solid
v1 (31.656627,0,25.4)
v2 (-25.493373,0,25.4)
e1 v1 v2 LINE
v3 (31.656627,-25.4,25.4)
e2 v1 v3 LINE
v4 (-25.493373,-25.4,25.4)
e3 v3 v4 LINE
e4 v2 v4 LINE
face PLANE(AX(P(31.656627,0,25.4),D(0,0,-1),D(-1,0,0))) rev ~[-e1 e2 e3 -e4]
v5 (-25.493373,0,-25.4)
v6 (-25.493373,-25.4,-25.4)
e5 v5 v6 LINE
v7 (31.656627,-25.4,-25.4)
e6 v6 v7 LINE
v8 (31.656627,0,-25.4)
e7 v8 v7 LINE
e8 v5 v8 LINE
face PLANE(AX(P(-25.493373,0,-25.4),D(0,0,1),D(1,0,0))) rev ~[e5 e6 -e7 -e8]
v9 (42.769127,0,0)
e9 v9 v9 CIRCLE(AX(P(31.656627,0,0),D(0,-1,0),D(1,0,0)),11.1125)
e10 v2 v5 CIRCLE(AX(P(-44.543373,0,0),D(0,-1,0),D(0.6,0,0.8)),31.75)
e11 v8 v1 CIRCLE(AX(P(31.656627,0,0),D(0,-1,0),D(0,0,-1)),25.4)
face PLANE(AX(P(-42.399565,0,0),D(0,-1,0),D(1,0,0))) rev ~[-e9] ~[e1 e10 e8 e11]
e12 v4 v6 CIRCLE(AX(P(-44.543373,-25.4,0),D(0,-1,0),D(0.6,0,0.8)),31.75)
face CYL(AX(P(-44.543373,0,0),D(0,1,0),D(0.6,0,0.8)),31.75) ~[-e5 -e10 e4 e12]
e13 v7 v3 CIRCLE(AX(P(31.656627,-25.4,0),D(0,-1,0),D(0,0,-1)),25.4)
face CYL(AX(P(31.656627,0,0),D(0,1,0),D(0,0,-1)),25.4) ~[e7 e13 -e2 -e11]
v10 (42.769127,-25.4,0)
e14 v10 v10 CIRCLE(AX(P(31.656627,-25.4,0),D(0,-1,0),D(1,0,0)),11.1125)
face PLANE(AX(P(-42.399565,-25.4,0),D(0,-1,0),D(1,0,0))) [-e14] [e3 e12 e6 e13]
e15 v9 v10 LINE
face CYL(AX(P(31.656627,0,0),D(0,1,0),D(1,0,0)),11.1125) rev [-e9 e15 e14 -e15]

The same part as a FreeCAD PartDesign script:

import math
import FreeCAD as App
import Part
import Sketcher
Q = App.Units.Quantity

doc = App.newDocument("Part")
params = doc.addObject("Spreadsheet::Sheet", "Params")
for row, (alias, value) in enumerate([
    ("sketch1_radius", "1 in"),
    ("sketch1_radius2", "1.25 in"),
    ("sketch1_diameter", "0.875 in"),
    ("pad1_length", "1 in"),
], start=1):
    params.set(f"A{row}", alias)
    params.set(f"B{row}", "=" + value)
    params.setAlias(f"B{row}", alias)

body = doc.addObject("PartDesign::Body", "Body")

# Sketch on XZ plane
sketch1 = doc.addObject("Sketcher::SketchObject", "Sketch")
body.addObject(sketch1)
sketch1.AttachmentSupport = (doc.XZ_Plane, [""])
sketch1.MapMode = "FlatFace"
sketch1.addGeometry([
    Part.ArcOfCircle(Part.Circle(App.Vector(-44.543373, 0, 0), App.Vector(0, 0, 1), 31.75), math.radians(53.130102), math.radians(306.869898)),  # 0
    Part.LineSegment(App.Vector(-25.493373, -25.4, 0), App.Vector(31.656627, -25.4, 0)),  # 1
    Part.ArcOfCircle(Part.Circle(App.Vector(31.656627, 0, 0), App.Vector(0, 0, 1), 25.4), math.radians(-90), math.radians(90)),  # 2
    Part.LineSegment(App.Vector(31.656627, 25.4, 0), App.Vector(-25.493373, 25.4, 0)),  # 3
    Part.Circle(App.Vector(31.656627, 0, 0), App.Vector(0, 0, 1), 11.1125),  # 4
], False)
sketch1.addConstraint([
    Sketcher.Constraint("Coincident", 0, 2, 1, 1),
    Sketcher.Constraint("Tangent", 1, 2, 2, 1),
    Sketcher.Constraint("Tangent", 2, 2, 3, 1),
    Sketcher.Constraint("Coincident", 3, 2, 0, 1),
    Sketcher.Constraint("Horizontal", 1),
    Sketcher.Constraint("Horizontal", 3),
    Sketcher.Constraint("Coincident", 4, 3, 2, 3),
    Sketcher.Constraint("Symmetric", 0, 2, 3, 2, -1),
    Sketcher.Constraint("Radius", 2, Q("1 in")),
    Sketcher.Constraint("Radius", 0, Q("1.25 in")),
    Sketcher.Constraint("Diameter", 4, Q("0.875 in")),
    Sketcher.Constraint("DistanceX", 0, 3, 2, 3, Q("3 in")),
    Sketcher.Constraint("DistanceX", 0, 3, -1, 1, Q("44.543373 mm")),
])
sketch1.setExpression("Constraints[8]", "Params.sketch1_radius")
sketch1.setExpression("Constraints[9]", "Params.sketch1_radius2")
sketch1.setExpression("Constraints[10]", "Params.sketch1_diameter")
pad1 = doc.addObject("PartDesign::Pad", "Pad")
body.addObject(pad1)
pad1.Profile = sketch1
pad1.setExpression("Length", "Params.pad1_length")

doc.recompute()
